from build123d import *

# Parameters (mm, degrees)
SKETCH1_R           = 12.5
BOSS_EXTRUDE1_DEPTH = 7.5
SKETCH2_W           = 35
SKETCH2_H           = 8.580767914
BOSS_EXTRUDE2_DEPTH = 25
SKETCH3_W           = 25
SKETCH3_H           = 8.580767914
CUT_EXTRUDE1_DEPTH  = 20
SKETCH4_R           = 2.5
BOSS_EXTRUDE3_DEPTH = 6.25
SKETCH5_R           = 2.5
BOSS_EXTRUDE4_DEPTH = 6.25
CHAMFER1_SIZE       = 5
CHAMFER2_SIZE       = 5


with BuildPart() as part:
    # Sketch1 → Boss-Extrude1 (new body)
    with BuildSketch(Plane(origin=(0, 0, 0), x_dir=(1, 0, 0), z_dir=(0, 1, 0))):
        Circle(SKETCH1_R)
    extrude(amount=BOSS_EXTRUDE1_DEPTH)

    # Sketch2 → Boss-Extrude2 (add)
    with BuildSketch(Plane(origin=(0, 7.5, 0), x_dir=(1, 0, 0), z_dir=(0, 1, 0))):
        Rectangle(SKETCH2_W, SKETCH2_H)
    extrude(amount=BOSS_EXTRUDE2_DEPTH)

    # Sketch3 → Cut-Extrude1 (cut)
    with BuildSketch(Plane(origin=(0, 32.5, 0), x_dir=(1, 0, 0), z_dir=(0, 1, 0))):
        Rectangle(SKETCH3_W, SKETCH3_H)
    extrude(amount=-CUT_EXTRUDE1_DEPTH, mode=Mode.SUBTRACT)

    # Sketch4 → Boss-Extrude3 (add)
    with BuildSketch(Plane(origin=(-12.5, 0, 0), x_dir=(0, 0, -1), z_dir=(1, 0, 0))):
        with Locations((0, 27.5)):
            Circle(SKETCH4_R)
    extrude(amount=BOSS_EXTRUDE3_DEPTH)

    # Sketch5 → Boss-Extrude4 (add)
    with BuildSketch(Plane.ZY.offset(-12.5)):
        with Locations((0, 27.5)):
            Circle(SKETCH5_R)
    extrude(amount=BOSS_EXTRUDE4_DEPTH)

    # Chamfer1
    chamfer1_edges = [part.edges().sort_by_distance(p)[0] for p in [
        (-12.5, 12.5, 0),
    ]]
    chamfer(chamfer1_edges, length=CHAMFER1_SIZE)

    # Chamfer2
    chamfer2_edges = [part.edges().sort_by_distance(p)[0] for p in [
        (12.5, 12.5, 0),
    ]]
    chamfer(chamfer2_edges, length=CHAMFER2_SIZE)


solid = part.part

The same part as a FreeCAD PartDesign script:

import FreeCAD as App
import Part
import Sketcher
Q = App.Units.Quantity


def edges_at(feature, points):
    """Names of the edges that pass closest to the given points."""
    edges = feature.Shape.Edges
    near = lambda p: min(range(len(edges)), key=lambda i: edges[i].distToShape(Part.Vertex(*p))[0])
    return sorted({f"Edge{near(p) + 1}" for p in points})

doc = App.newDocument("Part")
body = doc.addObject("PartDesign::Body", "Body")

sketch1 = body.newObject("Sketcher::SketchObject", "Sketch")
sketch1.AttachmentSupport = (doc.getObject("XZ_Plane"), [""])
sketch1.MapMode = "FlatFace"
sketch1.addGeometry(Part.Circle(App.Vector(0, 0, 0), App.Vector(0, 0, 1), 12.5), False)
sketch1.addConstraint(Sketcher.Constraint("Coincident", 0, 3, -1, 1))
sketch1.addConstraint(Sketcher.Constraint("Diameter", 0, Q("25 mm")))
pad1 = body.newObject("PartDesign::Pad", "Pad")
pad1.Profile = sketch1
pad1.Length = 7.5
pad1.Reversed = True

sketch2 = body.newObject("Sketcher::SketchObject", "Sketch001")
sketch2.AttachmentSupport = (doc.getObject("XZ_Plane"), [""])
sketch2.MapMode = "FlatFace"
sketch2.AttachmentOffset = App.Placement(App.Vector(0, 0, -7.5), App.Rotation())
sketch2.addGeometry(Part.LineSegment(App.Vector(-17.5, -4.290384, 0), App.Vector(-17.5, 4.290384, 0)), False)
sketch2.addGeometry(Part.LineSegment(App.Vector(-17.5, 4.290384, 0), App.Vector(17.5, 4.290384, 0)), False)
sketch2.addGeometry(Part.LineSegment(App.Vector(17.5, 4.290384, 0), App.Vector(17.5, -4.290384, 0)), False)
sketch2.addGeometry(Part.LineSegment(App.Vector(17.5, -4.290384, 0), App.Vector(-17.5, -4.290384, 0)), False)
sketch2.addConstraint(Sketcher.Constraint("Coincident", 0, 2, 1, 1))
sketch2.addConstraint(Sketcher.Constraint("Coincident", 1, 2, 2, 1))
sketch2.addConstraint(Sketcher.Constraint("Coincident", 2, 2, 3, 1))
sketch2.addConstraint(Sketcher.Constraint("Coincident", 3, 2, 0, 1))
sketch2.addConstraint(Sketcher.Constraint("Vertical", 0))
sketch2.addConstraint(Sketcher.Constraint("Horizontal", 1))
sketch2.addConstraint(Sketcher.Constraint("Vertical", 2))
sketch2.addConstraint(Sketcher.Constraint("Horizontal", 3))
sketch2.addConstraint(Sketcher.Constraint("Symmetric", 0, 2, 2, 2, -1, 1))
sketch2.addConstraint(Sketcher.Constraint("DistanceX", 1, 1, 1, 2, Q("35 mm")))
sketch2.addConstraint(Sketcher.Constraint("DistanceY", 0, 1, 0, 2, Q("8.580768 mm")))
pad2 = body.newObject("PartDesign::Pad", "Pad001")
pad2.Profile = sketch2
pad2.Length = 25
pad2.Reversed = True

sketch3 = body.newObject("Sketcher::SketchObject", "Sketch002")
sketch3.AttachmentSupport = (doc.getObject("XZ_Plane"), [""])
sketch3.MapMode = "FlatFace"
sketch3.AttachmentOffset = App.Placement(App.Vector(0, 0, -32.5), App.Rotation())
sketch3.addGeometry(Part.LineSegment(App.Vector(-12.5, -4.290384, 0), App.Vector(-12.5, 4.290384, 0)), False)
sketch3.addGeometry(Part.LineSegment(App.Vector(-12.5, 4.290384, 0), App.Vector(12.5, 4.290384, 0)), False)
sketch3.addGeometry(Part.LineSegment(App.Vector(12.5, 4.290384, 0), App.Vector(12.5, -4.290384, 0)), False)
sketch3.addGeometry(Part.LineSegment(App.Vector(12.5, -4.290384, 0), App.Vector(-12.5, -4.290384, 0)), False)
sketch3.addConstraint(Sketcher.Constraint("Coincident", 0, 2, 1, 1))
sketch3.addConstraint(Sketcher.Constraint("Coincident", 1, 2, 2, 1))
sketch3.addConstraint(Sketcher.Constraint("Coincident", 2, 2, 3, 1))
sketch3.addConstraint(Sketcher.Constraint("Coincident", 3, 2, 0, 1))
sketch3.addConstraint(Sketcher.Constraint("Vertical", 0))
sketch3.addConstraint(Sketcher.Constraint("Horizontal", 1))
sketch3.addConstraint(Sketcher.Constraint("Vertical", 2))
sketch3.addConstraint(Sketcher.Constraint("Horizontal", 3))
sketch3.addConstraint(Sketcher.Constraint("Symmetric", 0, 2, 2, 2, -1, 1))
sketch3.addConstraint(Sketcher.Constraint("DistanceX", 1, 1, 1, 2, Q("25 mm")))
sketch3.addConstraint(Sketcher.Constraint("DistanceY", 0, 1, 0, 2, Q("8.580768 mm")))
pocket1 = body.newObject("PartDesign::Pocket", "Pocket")
pocket1.Profile = sketch3
pocket1.Length = 20
pocket1.Reversed = True

sketch4 = body.newObject("Sketcher::SketchObject", "Sketch003")
sketch4.AttachmentSupport = (doc.getObject("YZ_Plane"), [""])
sketch4.MapMode = "FlatFace"
sketch4.AttachmentOffset = App.Placement(App.Vector(0, 0, -12.5), App.Rotation())
sketch4.addGeometry(Part.Circle(App.Vector(27.5, 0, 0), App.Vector(0, 0, 1), 2.5), False)
sketch4.addConstraint(Sketcher.Constraint("PointOnObject", 0, 3, -1))
sketch4.addConstraint(Sketcher.Constraint("Diameter", 0, Q("5 mm")))
sketch4.addConstraint(Sketcher.Constraint("DistanceX", -1, 1, 0, 3, Q("27.5 mm")))
pad3 = body.newObject("PartDesign::Pad", "Pad002")
pad3.Profile = sketch4
pad3.Length = 6.25

sketch5 = body.newObject("Sketcher::SketchObject", "Sketch004")
sketch5.AttachmentSupport = (doc.getObject("YZ_Plane"), [""])
sketch5.MapMode = "FlatFace"
sketch5.AttachmentOffset = App.Placement(App.Vector(0, 0, 12.5), App.Rotation())
sketch5.addGeometry(Part.Circle(App.Vector(27.5, 0, 0), App.Vector(0, 0, 1), 2.5), False)
sketch5.addConstraint(Sketcher.Constraint("PointOnObject", 0, 3, -1))
sketch5.addConstraint(Sketcher.Constraint("Diameter", 0, Q("5 mm")))
sketch5.addConstraint(Sketcher.Constraint("DistanceX", -1, 1, 0, 3, Q("27.5 mm")))
pad4 = body.newObject("PartDesign::Pad", "Pad003")
pad4.Profile = sketch5
pad4.Length = 6.25
pad4.Reversed = True
doc.recompute()

chamfer = body.newObject("PartDesign::Chamfer", "Chamfer")
chamfer.Base = (pad4, edges_at(pad4, [(-12.5, 12.5, 0)]))
chamfer.Size = 5
doc.recompute()

chamfer2 = body.newObject("PartDesign::Chamfer", "Chamfer001")
chamfer2.Base = (chamfer, edges_at(chamfer, [(12.5, 12.5, 0)]))
chamfer2.Size = 5

doc.recompute()
